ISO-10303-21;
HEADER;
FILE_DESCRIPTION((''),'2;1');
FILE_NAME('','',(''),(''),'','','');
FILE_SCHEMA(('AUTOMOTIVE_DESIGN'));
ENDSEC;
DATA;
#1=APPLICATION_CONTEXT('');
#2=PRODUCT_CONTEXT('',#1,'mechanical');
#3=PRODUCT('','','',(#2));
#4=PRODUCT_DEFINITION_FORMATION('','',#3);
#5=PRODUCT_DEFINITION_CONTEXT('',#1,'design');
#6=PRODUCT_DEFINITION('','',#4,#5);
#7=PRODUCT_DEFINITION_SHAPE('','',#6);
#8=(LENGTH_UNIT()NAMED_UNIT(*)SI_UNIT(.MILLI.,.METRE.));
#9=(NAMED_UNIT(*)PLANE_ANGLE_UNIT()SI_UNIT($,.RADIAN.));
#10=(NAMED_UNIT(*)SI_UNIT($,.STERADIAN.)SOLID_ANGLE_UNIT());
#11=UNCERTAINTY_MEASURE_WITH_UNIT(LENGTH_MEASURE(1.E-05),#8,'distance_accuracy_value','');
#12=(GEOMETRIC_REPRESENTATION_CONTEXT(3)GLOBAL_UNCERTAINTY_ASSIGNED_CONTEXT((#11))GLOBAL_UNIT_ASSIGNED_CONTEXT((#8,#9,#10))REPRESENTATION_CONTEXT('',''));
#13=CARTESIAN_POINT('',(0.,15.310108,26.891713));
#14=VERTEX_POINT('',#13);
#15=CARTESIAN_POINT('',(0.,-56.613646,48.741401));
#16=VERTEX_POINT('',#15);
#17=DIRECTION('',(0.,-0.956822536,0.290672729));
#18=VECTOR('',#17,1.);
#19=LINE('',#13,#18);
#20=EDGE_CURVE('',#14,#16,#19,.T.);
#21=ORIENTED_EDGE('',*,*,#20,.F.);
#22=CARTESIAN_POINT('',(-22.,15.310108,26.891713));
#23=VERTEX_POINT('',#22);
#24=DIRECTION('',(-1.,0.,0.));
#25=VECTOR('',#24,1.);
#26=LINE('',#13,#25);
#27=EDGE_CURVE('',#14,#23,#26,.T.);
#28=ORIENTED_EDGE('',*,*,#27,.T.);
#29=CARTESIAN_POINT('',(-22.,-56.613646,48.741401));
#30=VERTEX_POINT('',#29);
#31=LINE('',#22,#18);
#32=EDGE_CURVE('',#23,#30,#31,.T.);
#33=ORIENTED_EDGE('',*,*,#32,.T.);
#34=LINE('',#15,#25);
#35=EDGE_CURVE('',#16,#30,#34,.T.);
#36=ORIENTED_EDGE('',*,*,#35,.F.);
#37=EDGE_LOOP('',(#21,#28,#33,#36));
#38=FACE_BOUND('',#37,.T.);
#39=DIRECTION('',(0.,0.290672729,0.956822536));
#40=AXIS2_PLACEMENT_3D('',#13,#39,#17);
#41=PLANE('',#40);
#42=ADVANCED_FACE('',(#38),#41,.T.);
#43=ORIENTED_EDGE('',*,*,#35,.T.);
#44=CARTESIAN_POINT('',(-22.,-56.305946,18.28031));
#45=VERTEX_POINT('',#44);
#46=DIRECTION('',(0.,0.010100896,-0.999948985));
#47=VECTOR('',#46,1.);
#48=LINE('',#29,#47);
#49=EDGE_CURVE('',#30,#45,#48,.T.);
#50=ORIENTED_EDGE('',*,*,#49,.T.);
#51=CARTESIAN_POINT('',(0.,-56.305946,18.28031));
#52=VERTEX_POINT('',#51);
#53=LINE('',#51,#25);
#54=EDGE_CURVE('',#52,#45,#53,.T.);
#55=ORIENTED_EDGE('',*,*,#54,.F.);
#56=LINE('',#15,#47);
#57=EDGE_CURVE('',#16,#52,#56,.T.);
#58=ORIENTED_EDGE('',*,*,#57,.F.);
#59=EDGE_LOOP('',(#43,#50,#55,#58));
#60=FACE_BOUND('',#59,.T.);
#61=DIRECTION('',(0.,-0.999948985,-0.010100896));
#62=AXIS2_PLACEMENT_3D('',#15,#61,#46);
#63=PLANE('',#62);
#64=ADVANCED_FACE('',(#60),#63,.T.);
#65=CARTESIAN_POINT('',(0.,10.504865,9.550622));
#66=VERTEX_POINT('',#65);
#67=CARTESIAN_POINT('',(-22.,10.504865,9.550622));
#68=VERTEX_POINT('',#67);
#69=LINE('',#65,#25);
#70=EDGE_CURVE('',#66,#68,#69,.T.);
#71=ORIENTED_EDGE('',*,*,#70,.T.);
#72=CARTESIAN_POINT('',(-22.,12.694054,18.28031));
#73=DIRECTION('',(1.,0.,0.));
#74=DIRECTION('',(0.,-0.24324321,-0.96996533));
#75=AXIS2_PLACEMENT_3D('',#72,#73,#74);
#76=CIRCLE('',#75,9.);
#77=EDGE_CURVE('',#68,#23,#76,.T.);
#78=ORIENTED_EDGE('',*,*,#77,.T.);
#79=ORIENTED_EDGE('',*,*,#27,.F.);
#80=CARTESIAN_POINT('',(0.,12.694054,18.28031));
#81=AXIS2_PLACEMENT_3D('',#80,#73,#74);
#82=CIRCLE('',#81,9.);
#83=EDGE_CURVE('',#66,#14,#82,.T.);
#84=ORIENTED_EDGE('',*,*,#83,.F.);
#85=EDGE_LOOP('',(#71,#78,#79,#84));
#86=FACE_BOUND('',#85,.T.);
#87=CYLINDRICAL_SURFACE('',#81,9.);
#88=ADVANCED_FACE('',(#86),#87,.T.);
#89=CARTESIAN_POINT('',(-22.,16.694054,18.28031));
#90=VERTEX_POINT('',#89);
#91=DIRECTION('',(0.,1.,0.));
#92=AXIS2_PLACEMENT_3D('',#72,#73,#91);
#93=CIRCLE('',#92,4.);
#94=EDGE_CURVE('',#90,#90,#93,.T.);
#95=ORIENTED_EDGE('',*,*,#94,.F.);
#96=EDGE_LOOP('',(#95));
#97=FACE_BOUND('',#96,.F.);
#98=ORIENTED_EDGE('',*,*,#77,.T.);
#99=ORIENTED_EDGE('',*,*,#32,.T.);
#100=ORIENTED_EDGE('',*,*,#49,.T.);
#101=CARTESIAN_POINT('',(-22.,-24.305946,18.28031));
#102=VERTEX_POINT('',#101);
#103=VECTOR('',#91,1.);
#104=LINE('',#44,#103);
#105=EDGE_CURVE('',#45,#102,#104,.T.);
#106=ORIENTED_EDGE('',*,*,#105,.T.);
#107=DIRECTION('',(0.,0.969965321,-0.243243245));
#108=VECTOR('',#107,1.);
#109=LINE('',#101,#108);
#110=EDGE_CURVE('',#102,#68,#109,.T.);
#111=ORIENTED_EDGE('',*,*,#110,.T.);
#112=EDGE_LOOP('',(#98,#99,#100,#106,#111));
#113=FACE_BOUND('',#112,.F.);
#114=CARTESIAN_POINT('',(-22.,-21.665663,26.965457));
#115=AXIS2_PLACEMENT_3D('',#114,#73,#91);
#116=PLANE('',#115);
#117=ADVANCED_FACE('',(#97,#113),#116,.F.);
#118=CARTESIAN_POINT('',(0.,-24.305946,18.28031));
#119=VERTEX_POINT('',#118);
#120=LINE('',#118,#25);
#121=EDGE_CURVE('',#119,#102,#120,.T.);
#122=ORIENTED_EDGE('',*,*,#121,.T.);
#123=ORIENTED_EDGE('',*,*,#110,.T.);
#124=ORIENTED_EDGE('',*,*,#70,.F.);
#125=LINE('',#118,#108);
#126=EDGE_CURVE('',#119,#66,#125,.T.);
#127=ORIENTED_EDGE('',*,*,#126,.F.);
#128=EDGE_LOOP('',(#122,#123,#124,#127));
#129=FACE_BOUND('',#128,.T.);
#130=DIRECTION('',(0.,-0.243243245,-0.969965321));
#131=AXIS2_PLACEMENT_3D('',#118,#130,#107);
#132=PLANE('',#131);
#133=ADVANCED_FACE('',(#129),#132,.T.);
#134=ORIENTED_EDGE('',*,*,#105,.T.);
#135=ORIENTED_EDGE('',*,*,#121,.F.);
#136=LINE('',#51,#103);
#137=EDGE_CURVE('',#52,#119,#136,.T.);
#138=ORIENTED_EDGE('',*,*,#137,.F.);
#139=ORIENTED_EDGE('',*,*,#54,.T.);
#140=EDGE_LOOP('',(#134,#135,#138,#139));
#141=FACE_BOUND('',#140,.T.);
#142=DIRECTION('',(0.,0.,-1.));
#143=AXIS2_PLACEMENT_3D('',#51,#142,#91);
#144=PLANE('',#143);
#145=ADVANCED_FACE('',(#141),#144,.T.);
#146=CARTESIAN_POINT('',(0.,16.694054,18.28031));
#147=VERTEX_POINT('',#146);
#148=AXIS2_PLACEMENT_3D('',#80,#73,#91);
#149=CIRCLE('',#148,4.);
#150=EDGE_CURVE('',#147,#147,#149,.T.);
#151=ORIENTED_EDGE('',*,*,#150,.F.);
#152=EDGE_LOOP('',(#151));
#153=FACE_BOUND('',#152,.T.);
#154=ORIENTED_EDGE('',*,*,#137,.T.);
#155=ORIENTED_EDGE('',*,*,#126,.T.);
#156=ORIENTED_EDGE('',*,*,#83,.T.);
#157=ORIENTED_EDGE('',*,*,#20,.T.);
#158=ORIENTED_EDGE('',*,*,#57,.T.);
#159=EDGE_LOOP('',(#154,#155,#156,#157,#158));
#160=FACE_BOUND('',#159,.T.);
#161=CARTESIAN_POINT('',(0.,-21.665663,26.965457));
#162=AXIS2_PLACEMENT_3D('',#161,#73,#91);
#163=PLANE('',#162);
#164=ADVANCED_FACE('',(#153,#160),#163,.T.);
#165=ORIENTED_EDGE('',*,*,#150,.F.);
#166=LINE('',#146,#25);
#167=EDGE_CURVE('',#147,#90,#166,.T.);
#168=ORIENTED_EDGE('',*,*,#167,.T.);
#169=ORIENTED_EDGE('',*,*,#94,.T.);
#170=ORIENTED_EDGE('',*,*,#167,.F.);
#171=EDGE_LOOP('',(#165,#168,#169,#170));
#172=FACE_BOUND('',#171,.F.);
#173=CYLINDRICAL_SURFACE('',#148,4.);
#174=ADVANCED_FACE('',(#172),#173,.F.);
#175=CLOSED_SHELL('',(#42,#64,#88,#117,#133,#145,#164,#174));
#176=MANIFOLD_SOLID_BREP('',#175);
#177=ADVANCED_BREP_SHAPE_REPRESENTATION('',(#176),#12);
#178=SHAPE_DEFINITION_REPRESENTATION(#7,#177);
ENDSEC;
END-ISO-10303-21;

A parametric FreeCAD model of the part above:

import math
import FreeCAD as App
import Part
import Sketcher
from FreeCAD import Vector
Q = App.Units.Quantity

doc = App.newDocument("Part")
params = doc.addObject("Spreadsheet::Sheet", "Params")
for row, (alias, value) in enumerate([
    ("sketch1_diameter", "8 mm"),
    ("sketch1_radius", "9 mm"),
    ("sketch1_width", "32 mm"),
    ("pad1_length", "22 mm"),
], start=1):
    params.set(f"A{row}", alias)
    params.set(f"B{row}", "=" + value)
    params.setAlias(f"B{row}", alias)

body = doc.addObject("PartDesign::Body", "Body")

sketch1 = doc.addObject("Sketcher::SketchObject", "Sketch")
body.addObject(sketch1)
sketch1.AttachmentSupport = (doc.YZ_Plane, [""])
sketch1.MapMode = "FlatFace"
sketch1.addGeometry(Part.LineSegment(Vector(-56.613646, 48.741401, 0), Vector(-56.305946, 18.28031, 0)), False)
sketch1.addGeometry(Part.LineSegment(Vector(-56.305946, 18.28031, 0), Vector(-24.305946, 18.28031, 0)), False)
sketch1.addGeometry(Part.LineSegment(Vector(-24.305946, 18.28031, 0), Vector(10.504865, 9.550622, 0)), False)
sketch1.addGeometry(Part.ArcOfCircle(Part.Circle(Vector(12.694054, 18.28031, 0), Vector(0, 0, 1), 9), math.radians(-104.078037), math.radians(73.101768)), False)
sketch1.addGeometry(Part.LineSegment(Vector(15.310108, 26.891713, 0), Vector(-56.613646, 48.741401, 0)), False)
sketch1.addGeometry(Part.Circle(Vector(12.694054, 18.28031, 0), Vector(0, 0, 1), 4), False)
sketch1.addConstraint(Sketcher.Constraint("Coincident", 0, 2, 1, 1))
sketch1.addConstraint(Sketcher.Constraint("Coincident", 1, 2, 2, 1))
sketch1.addConstraint(Sketcher.Constraint("Tangent", 2, 2, 3, 1))
sketch1.addConstraint(Sketcher.Constraint("Tangent", 3, 2, 4, 1))
sketch1.addConstraint(Sketcher.Constraint("Coincident", 4, 2, 0, 1))
sketch1.addConstraint(Sketcher.Constraint("Horizontal", 1))
sketch1.addConstraint(Sketcher.Constraint("Coincident", 5, 3, 3, 3))
sketch1.addConstraint(Sketcher.Constraint("Horizontal", 5, 3, 0, 2))
sketch1.addConstraint(Sketcher.Constraint("Diameter", 5, Q("8 mm")))
sketch1.addConstraint(Sketcher.Constraint("Radius", 3, Q("9 mm")))
sketch1.addConstraint(Sketcher.Constraint("DistanceX", 1, 1, 1, 2, Q("32 mm")))
sketch1.addConstraint(Sketcher.Constraint("DistanceX", 0, 2, 3, 3, Q("69 mm")))
sketch1.addConstraint(Sketcher.Constraint("DistanceY", -1, 1, 4, 2, Q("48.741401 mm")))
sketch1.addConstraint(Sketcher.Constraint("DistanceX", 4, 2, 0, 2, Q("0.3077 mm")))
sketch1.addConstraint(Sketcher.Constraint("DistanceY", -1, 1, 3, 3, Q("18.28031 mm")))
sketch1.addConstraint(Sketcher.Constraint("DistanceX", -1, 1, 3, 3, Q("12.694054 mm")))
sketch1.setExpression("Constraints[8]", "Params.sketch1_diameter")
sketch1.setExpression("Constraints[9]", "Params.sketch1_radius")
sketch1.setExpression("Constraints[10]", "Params.sketch1_width")
pad1 = doc.addObject("PartDesign::Pad", "Pad")
body.addObject(pad1)
pad1.Profile = sketch1
pad1.setExpression("Length", "Params.pad1_length")
pad1.Reversed = True

doc.recompute()
